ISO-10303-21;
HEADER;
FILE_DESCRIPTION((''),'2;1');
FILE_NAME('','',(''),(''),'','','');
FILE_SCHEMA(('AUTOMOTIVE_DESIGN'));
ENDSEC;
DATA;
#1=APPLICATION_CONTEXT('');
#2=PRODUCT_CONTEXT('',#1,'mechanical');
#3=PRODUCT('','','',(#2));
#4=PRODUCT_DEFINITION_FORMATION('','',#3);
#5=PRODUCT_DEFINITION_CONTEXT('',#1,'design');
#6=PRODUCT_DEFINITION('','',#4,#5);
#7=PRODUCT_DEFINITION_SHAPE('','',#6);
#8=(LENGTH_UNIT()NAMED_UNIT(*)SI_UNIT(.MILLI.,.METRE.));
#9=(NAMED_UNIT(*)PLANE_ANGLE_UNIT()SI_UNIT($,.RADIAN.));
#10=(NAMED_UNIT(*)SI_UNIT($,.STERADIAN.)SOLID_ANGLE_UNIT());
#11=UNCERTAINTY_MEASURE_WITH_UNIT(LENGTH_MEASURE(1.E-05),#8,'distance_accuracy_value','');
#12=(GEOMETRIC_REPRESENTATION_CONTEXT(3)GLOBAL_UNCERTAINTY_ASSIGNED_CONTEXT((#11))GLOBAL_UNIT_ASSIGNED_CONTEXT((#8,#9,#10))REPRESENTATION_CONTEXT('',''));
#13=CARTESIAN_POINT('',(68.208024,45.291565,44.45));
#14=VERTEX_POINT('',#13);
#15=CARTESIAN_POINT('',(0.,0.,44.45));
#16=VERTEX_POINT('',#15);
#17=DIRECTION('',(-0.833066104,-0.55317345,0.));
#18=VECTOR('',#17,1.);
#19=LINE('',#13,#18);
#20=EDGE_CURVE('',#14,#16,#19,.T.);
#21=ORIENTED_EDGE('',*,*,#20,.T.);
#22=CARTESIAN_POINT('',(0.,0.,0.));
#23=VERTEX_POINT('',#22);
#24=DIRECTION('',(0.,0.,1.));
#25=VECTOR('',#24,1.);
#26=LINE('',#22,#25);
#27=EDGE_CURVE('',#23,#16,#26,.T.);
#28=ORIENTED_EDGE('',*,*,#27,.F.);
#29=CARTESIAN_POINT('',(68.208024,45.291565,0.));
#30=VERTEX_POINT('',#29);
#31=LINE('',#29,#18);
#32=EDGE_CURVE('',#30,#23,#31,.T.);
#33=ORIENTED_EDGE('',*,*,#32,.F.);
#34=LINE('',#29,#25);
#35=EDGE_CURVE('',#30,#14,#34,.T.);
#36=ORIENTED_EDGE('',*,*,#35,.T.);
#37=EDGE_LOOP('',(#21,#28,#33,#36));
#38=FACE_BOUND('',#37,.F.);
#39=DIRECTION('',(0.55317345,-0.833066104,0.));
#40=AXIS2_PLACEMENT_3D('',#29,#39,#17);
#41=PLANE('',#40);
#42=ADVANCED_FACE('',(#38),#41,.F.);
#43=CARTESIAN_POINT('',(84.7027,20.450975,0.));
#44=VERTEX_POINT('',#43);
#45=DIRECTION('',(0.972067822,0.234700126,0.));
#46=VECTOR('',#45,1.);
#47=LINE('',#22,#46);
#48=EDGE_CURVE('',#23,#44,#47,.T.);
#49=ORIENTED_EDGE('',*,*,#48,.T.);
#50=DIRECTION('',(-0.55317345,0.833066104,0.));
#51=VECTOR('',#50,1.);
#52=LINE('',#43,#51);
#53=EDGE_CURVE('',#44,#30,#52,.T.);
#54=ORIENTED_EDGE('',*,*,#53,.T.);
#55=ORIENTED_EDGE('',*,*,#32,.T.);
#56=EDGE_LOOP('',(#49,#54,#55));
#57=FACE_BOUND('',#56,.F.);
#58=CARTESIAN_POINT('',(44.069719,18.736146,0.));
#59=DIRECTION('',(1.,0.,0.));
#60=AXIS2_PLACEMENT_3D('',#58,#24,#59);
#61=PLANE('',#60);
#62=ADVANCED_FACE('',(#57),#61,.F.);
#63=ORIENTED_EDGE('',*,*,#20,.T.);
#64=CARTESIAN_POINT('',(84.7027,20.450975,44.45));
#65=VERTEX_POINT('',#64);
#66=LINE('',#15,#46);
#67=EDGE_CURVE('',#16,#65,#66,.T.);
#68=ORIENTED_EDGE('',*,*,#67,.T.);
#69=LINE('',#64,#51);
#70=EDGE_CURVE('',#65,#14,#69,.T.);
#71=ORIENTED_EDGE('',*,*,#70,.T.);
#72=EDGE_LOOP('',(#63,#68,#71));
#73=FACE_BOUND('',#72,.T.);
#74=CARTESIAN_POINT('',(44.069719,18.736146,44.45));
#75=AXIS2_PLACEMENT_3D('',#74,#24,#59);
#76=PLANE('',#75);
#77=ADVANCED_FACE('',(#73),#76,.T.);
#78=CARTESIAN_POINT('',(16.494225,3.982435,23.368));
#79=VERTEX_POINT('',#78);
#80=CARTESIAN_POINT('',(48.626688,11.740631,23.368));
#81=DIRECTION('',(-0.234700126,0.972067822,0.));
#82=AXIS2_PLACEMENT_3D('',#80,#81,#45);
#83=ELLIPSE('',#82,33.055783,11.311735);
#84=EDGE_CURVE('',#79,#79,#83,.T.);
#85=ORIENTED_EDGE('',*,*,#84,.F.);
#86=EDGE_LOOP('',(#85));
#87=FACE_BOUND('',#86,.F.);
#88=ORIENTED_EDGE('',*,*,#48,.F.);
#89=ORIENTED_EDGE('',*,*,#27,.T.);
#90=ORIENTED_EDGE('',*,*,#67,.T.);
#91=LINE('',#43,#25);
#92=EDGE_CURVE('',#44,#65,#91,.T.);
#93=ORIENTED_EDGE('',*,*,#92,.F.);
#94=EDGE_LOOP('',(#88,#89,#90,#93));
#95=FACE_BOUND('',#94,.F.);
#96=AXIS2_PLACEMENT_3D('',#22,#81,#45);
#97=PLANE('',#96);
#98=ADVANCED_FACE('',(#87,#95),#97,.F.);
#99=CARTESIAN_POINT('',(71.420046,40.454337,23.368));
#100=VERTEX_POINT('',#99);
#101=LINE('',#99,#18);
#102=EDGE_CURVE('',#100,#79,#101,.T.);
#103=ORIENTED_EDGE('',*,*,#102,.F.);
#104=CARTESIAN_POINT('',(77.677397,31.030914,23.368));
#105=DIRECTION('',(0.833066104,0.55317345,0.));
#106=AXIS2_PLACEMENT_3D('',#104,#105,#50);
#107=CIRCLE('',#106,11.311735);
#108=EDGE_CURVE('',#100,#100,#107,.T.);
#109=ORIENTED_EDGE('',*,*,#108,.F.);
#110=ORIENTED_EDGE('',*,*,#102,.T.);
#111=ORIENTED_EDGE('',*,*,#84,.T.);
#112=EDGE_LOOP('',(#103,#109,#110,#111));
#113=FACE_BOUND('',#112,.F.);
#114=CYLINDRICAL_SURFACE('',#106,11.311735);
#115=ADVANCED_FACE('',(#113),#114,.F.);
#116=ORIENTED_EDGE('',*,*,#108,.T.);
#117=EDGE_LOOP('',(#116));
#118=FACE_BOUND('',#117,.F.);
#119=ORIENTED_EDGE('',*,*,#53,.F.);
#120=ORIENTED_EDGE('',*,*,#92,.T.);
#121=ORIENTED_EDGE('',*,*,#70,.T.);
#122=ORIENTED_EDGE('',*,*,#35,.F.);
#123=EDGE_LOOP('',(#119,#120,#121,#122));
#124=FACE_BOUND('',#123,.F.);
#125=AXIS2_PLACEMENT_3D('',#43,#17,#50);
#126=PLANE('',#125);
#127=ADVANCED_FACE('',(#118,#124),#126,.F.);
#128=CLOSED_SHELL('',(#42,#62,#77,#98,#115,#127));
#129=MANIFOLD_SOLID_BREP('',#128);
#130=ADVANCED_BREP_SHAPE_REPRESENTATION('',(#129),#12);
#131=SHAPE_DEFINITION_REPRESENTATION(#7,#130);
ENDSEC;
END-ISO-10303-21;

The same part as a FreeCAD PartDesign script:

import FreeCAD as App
import Part
import Sketcher
Q = App.Units.Quantity

doc = App.newDocument("Part")
body = doc.addObject("PartDesign::Body", "Body")

sketch1 = body.newObject("Sketcher::SketchObject", "Sketch")
sketch1.AttachmentSupport = (doc.getObject("XY_Plane"), [""])
sketch1.MapMode = "FlatFace"
sketch1.addGeometry([
    Part.LineSegment(App.Vector(68, 45, 0), App.Vector(0, 0, 0)),
    Part.LineSegment(App.Vector(0, 0, 0), App.Vector(85, 20, 0)),
    Part.LineSegment(App.Vector(85, 20, 0), App.Vector(68, 45, 0)),
], False)
sketch1.addConstraint([
    Sketcher.Constraint("Coincident", 0, 2, 1, 1),
    Sketcher.Constraint("Coincident", 1, 2, 2, 1),
    Sketcher.Constraint("Coincident", 2, 2, 0, 1),
    Sketcher.Constraint("Coincident", 0, 2, -1, 1),
    Sketcher.Constraint("Perpendicular", 0, 2),
    Sketcher.Constraint("DistanceX", -1, 1, 1, 2, Q("84.7027 mm")),
    Sketcher.Constraint("Distance", 2, Q("29.818271 mm")),
    Sketcher.Constraint("DistanceY", 1, 2, 2, 2, Q("24.840591 mm")),
])
pad1 = body.newObject("PartDesign::Pad", "Pad")
pad1.Profile = sketch1
pad1.Length = Q("1.75 in")

sketch2 = body.newObject("Sketcher::SketchObject", "Sketch001")
sketch2.Placement = App.Placement(App.Vector(68.208024, 45.291565, 0), App.Rotation(App.Vector(-0.55317345, 0.833066104, 0), App.Vector(0, 0, 0.999999999), App.Vector(0.833066104, 0.55317345, 0), "ZXY"))
sketch2.addGeometry(Part.Circle(App.Vector(-17, 23, 0), App.Vector(0, 0, 1), 11), False)
sketch2.addConstraint([
    Sketcher.Constraint("DistanceY", -1, 1, 0, 3, Q("0.92 in")),
    Sketcher.Constraint("Diameter", 0, Q("22.62347 mm")),
    Sketcher.Constraint("DistanceX", 0, 3, -1, 1, Q("17.118271 mm")),
])
pocket1 = body.newObject("PartDesign::Pocket", "Pocket")
pocket1.Profile = sketch2
pocket1.Type = "ThroughAll"

doc.recompute()
